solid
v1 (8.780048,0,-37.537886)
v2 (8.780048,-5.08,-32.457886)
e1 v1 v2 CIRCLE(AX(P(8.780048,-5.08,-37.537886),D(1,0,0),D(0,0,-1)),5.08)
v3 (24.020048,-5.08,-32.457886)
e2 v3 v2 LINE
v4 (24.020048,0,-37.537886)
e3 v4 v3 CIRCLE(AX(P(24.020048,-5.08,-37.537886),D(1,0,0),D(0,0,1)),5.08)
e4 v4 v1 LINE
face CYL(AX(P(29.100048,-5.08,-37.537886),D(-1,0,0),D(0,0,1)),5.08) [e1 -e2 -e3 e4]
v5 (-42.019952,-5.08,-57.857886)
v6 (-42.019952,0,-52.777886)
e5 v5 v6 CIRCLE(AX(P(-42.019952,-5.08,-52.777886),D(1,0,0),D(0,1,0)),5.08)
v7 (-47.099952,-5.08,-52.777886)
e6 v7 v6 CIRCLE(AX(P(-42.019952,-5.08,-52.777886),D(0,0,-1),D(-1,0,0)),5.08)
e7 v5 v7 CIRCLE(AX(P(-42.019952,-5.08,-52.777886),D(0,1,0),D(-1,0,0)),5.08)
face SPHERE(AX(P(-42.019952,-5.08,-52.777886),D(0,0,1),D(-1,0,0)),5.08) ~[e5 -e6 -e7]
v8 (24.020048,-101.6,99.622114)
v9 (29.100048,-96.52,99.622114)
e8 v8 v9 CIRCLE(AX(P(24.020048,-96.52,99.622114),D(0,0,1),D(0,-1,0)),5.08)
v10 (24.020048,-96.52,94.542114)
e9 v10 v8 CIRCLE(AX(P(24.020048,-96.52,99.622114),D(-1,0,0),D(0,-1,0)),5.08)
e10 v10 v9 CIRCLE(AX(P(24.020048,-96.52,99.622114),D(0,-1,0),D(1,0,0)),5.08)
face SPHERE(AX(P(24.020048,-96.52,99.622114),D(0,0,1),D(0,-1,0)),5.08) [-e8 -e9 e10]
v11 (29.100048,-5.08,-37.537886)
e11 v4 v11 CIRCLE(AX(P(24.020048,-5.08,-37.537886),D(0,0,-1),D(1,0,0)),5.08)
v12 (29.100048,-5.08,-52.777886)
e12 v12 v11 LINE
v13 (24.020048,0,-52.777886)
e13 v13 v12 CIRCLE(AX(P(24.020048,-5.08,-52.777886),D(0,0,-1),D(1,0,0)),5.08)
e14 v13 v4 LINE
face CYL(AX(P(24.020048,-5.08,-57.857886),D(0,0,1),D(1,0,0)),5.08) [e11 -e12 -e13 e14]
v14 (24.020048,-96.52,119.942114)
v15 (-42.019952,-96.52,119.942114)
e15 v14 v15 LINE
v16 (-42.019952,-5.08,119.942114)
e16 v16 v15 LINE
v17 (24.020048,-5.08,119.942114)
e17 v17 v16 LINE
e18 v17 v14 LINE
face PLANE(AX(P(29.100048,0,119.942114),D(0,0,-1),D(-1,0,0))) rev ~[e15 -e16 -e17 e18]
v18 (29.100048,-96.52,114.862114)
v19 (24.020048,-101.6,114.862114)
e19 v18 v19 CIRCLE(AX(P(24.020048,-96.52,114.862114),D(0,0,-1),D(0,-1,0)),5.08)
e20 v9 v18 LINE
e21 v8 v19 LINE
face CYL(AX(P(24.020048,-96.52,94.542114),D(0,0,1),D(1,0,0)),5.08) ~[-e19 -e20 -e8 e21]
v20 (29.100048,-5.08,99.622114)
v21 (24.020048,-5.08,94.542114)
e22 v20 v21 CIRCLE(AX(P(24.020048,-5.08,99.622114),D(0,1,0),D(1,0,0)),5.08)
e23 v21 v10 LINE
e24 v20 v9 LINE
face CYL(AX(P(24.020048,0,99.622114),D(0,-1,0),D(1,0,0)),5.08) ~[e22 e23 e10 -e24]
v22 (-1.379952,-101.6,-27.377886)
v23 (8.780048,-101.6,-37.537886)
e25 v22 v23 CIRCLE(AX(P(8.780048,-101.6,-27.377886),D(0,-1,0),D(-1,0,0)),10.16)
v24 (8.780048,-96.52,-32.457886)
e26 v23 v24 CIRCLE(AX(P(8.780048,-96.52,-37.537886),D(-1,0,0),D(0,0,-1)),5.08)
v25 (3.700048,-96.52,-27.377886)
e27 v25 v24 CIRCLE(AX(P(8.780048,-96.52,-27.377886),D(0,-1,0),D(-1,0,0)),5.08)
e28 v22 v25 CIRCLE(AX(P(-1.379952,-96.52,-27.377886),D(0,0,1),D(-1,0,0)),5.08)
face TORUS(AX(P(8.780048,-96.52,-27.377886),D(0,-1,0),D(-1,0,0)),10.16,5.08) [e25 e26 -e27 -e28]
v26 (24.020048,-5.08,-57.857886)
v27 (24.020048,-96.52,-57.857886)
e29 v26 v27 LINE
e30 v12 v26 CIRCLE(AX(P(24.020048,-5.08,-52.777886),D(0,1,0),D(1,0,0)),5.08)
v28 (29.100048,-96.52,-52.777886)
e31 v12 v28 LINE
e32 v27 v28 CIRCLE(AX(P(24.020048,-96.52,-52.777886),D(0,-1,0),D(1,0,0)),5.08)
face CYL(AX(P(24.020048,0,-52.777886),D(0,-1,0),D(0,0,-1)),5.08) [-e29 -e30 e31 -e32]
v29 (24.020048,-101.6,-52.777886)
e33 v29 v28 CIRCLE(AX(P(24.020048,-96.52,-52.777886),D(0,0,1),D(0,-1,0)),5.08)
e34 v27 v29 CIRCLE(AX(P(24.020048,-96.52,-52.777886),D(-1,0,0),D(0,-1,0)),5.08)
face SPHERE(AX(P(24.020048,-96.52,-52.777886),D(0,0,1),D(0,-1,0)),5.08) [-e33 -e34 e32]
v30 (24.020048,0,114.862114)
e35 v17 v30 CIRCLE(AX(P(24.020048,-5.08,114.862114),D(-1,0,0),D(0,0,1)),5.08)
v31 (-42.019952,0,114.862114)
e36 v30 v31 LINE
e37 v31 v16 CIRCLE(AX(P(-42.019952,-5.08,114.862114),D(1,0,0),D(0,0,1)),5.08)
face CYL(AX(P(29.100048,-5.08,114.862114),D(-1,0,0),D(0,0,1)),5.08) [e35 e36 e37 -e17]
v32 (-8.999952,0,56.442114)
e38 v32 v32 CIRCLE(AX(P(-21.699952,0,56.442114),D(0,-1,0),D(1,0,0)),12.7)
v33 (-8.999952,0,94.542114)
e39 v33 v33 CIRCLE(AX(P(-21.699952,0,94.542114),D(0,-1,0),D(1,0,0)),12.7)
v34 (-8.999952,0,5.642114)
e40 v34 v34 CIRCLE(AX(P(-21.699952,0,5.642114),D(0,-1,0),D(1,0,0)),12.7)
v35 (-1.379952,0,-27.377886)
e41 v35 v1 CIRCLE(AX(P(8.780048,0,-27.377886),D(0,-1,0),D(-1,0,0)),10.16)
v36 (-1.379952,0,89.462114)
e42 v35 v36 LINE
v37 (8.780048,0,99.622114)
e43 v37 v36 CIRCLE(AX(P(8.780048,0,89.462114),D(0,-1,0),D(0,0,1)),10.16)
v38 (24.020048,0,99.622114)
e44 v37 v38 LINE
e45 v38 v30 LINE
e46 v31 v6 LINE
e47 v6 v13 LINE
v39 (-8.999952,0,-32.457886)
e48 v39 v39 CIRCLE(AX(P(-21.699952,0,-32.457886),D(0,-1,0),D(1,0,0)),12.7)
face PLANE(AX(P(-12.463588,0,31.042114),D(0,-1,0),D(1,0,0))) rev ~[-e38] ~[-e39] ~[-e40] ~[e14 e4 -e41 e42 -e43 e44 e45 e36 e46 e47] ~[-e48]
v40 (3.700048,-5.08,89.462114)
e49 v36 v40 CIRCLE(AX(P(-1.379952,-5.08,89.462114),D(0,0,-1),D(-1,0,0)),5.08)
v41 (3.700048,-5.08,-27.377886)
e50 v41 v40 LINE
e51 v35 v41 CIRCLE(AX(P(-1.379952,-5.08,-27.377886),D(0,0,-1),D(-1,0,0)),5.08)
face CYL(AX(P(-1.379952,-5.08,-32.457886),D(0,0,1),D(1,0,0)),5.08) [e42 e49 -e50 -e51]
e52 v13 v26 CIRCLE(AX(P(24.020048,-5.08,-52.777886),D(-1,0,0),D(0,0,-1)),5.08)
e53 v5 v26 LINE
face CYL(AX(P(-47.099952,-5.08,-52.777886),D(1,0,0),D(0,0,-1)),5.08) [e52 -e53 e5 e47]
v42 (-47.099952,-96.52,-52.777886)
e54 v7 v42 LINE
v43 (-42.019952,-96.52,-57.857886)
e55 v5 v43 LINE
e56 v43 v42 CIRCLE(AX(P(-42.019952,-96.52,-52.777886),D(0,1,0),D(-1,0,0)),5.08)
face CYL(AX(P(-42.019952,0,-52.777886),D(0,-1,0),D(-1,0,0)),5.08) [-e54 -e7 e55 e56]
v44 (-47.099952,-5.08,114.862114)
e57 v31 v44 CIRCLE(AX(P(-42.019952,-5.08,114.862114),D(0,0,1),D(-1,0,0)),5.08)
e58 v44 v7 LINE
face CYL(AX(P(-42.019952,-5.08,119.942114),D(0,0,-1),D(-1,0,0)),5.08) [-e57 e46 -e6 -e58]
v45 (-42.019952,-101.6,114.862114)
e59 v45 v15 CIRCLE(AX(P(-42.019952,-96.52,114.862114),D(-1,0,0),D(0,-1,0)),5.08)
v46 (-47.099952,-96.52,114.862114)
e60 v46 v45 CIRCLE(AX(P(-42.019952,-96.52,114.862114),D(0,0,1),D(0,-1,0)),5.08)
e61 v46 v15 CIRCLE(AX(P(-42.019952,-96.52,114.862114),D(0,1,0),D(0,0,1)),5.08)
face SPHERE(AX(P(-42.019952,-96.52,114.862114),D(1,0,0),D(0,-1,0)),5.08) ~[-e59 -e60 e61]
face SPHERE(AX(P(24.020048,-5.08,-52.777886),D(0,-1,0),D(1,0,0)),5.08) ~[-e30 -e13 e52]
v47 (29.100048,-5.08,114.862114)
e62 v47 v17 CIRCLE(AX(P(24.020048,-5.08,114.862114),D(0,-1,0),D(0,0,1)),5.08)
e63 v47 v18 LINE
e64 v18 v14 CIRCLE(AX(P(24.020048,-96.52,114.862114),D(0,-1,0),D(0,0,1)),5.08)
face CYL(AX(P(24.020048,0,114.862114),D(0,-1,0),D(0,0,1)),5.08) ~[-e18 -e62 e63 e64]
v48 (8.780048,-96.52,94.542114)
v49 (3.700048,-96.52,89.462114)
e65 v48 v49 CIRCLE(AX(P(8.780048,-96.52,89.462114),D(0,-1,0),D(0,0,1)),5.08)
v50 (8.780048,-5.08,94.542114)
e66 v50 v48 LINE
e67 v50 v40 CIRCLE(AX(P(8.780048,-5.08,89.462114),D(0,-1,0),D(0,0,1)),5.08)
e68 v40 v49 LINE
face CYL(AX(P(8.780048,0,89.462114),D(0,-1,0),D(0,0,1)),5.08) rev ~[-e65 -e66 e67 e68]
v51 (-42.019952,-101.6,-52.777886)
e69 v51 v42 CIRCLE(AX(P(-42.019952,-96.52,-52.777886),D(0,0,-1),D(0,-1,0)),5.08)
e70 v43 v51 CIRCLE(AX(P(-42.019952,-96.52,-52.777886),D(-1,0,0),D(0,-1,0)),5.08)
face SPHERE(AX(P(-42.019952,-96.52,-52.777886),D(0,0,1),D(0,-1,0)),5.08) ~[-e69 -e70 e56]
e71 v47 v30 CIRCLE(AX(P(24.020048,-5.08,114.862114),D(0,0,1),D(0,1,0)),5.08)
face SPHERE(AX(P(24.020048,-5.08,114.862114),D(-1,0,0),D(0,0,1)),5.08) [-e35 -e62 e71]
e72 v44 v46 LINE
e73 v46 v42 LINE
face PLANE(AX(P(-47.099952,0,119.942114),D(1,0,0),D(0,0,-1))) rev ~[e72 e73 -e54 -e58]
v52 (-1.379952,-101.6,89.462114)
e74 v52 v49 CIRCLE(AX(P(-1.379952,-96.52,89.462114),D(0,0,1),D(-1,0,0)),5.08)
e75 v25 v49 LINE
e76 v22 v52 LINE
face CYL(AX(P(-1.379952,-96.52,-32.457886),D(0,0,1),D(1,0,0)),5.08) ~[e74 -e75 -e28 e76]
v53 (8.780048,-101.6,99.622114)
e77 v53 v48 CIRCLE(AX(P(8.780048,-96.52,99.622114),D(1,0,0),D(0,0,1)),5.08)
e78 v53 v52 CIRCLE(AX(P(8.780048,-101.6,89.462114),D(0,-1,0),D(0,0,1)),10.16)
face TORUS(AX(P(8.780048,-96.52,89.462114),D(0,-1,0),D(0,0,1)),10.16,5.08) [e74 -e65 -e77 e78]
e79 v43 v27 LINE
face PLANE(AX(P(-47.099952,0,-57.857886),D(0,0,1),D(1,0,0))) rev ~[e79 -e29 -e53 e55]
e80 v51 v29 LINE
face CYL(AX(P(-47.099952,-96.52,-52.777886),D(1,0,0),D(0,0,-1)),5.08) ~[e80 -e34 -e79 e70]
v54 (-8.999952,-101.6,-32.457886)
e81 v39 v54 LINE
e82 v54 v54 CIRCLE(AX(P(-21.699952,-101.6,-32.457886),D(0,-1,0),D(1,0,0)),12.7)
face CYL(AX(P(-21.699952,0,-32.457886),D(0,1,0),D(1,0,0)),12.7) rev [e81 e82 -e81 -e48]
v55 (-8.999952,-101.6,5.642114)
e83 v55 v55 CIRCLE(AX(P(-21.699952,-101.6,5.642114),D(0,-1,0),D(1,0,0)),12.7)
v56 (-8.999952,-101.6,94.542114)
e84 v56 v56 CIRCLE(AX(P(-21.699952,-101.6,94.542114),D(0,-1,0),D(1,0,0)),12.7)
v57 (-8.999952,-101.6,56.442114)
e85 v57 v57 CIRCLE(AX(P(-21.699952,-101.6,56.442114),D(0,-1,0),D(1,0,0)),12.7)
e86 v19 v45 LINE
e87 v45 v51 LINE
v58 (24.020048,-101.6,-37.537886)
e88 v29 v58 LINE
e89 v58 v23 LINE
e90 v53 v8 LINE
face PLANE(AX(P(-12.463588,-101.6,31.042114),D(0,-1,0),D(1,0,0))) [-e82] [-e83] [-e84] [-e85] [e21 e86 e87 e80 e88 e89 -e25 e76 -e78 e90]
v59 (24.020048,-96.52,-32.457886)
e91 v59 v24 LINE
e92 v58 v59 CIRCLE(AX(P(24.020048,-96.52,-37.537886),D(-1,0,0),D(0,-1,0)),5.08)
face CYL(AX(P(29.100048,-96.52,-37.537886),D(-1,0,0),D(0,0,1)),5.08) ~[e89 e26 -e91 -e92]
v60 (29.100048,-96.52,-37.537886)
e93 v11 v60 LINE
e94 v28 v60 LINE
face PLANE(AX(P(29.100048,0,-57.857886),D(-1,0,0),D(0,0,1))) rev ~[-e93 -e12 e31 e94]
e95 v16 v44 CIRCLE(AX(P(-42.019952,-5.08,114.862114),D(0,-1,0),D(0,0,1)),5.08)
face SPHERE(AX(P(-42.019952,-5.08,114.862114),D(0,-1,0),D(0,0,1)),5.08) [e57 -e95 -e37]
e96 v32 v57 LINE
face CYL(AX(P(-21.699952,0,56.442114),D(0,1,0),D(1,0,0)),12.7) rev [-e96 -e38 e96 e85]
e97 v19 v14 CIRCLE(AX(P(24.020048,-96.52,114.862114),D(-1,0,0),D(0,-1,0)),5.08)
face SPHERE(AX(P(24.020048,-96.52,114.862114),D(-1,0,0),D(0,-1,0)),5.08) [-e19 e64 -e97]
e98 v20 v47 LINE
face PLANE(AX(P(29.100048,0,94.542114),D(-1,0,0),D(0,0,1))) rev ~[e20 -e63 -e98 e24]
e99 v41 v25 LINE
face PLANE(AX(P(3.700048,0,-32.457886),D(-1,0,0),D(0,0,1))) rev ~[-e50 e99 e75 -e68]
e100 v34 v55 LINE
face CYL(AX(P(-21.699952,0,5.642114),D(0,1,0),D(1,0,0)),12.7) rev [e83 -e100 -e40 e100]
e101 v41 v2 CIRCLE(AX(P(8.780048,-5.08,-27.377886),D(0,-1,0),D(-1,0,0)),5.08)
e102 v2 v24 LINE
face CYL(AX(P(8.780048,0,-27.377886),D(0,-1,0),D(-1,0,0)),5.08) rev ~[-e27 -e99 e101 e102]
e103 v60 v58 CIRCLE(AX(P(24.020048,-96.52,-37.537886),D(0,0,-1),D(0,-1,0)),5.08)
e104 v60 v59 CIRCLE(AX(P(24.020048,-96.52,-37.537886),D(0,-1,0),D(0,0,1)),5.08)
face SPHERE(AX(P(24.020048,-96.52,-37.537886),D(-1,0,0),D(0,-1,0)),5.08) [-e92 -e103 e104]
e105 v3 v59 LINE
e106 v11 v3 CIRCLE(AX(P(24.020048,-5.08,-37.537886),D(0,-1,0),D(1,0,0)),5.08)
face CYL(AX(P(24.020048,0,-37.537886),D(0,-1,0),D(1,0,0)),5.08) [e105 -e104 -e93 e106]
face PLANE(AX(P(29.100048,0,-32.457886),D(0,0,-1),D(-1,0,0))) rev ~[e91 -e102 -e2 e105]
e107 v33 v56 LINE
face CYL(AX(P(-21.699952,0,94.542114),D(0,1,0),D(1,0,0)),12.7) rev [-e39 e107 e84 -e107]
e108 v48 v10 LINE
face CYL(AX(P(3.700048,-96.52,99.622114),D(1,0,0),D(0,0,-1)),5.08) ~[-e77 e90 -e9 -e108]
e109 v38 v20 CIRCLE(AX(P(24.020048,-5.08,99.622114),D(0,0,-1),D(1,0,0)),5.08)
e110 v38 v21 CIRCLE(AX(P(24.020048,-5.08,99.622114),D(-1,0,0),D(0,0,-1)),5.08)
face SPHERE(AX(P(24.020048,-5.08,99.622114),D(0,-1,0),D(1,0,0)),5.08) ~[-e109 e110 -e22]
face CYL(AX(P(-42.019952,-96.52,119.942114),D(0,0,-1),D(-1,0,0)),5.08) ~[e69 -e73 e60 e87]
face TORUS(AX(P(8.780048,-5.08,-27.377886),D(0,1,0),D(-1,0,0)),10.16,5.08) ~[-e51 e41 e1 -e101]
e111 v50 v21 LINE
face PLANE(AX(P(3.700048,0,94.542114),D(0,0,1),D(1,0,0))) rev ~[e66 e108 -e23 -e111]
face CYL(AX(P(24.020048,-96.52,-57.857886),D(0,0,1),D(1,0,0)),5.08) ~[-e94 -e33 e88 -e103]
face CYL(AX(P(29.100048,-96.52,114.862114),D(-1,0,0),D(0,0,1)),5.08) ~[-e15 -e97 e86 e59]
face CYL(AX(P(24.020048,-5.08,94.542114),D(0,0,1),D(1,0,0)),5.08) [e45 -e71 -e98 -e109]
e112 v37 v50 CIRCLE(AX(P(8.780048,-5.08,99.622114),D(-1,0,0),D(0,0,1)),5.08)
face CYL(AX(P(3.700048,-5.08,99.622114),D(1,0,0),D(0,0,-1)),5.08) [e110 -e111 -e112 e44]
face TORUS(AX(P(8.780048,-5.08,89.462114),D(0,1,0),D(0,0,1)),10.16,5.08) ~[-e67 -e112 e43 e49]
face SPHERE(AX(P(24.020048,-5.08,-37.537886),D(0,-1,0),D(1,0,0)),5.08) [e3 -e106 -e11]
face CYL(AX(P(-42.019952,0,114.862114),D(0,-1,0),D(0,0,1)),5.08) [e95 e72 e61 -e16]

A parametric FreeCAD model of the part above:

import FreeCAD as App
import Part
import Sketcher
Q = App.Units.Quantity


def edges_at(feature, points):
    """Names of the edges that pass closest to the given points."""
    edges = feature.Shape.Edges
    near = lambda p: min(range(len(edges)), key=lambda i: edges[i].distToShape(Part.Vertex(*p))[0])
    return sorted({f"Edge{near(p) + 1}" for p in points})


def add_polygon(sketch, points):
    """Adds a closed chain of lines whose ends are joined by coincident constraints."""
    first, n = sketch.GeometryCount, len(points)
    for a, b in zip(points, points[1:] + points[:1]):
        sketch.addGeometry(Part.LineSegment(App.Vector(*a, 0), App.Vector(*b, 0)), False)
    for i in range(n):
        sketch.addConstraint(Sketcher.Constraint("Coincident", first + i, 2, first + (i + 1) % n, 1))

doc = App.newDocument("Part")
body = doc.addObject("PartDesign::Body", "Body")

sketch1 = body.newObject("Sketcher::SketchObject", "Sketch")
sketch1.AttachmentSupport = (doc.getObject("XZ_Plane"), [""])
sketch1.MapMode = "FlatFace"
add_polygon(sketch1, [(29.100048, 119.942114), (-47.099952, 119.942114), (-47.099952, -57.857886), (29.100048, -57.857886), (29.100048, -32.457886), (3.700048, -32.457886), (3.700048, 94.542114), (29.100048, 94.542114)])
sketch1.addGeometry(Part.Circle(App.Vector(-21.699952, -32.457886, 0), App.Vector(0, 0, 1), 12.7), False)
sketch1.addGeometry(Part.Circle(App.Vector(-21.699952, 5.642114, 0), App.Vector(0, 0, 1), 12.7), False)
sketch1.addGeometry(Part.Circle(App.Vector(-21.699952, 56.442114, 0), App.Vector(0, 0, 1), 12.7), False)
sketch1.addGeometry(Part.Circle(App.Vector(-21.699952, 94.542114, 0), App.Vector(0, 0, 1), 12.7), False)
sketch1.addConstraint([
    Sketcher.Constraint("Horizontal", 0),
    Sketcher.Constraint("Vertical", 1),
    Sketcher.Constraint("Horizontal", 2),
    Sketcher.Constraint("Vertical", 3),
    Sketcher.Constraint("Horizontal", 4),
    Sketcher.Constraint("Vertical", 5),
    Sketcher.Constraint("Horizontal", 6),
    Sketcher.Constraint("Vertical", 7),
    Sketcher.Constraint("Equal", 8, 9),
    Sketcher.Constraint("Equal", 9, 10),
    Sketcher.Constraint("Equal", 10, 11),
    Sketcher.Constraint("Horizontal", 8, 3, 3, 2),
    Sketcher.Constraint("Horizontal", 11, 3, 5, 2),
    Sketcher.Constraint("Vertical", 8, 3, 9, 3),
    Sketcher.Constraint("Vertical", 9, 3, 10, 3),
    Sketcher.Constraint("Vertical", 10, 3, 11, 3),
    Sketcher.Constraint("Vertical", 3, 2, 6, 2),
    Sketcher.Constraint("Equal", 6, 3),
    Sketcher.Constraint("Equal", 3, 7),
    Sketcher.Constraint("Diameter", 8, Q("1 in")),
    Sketcher.Constraint("DistanceX", 0, 2, 0, 1, Q("3 in")),
    Sketcher.Constraint("DistanceX", 4, 2, 4, 1, Q("1 in")),
    Sketcher.Constraint("DistanceY", 1, 2, 1, 1, Q("7 in")),
    Sketcher.Constraint("DistanceY", 9, 3, 10, 3, Q("2 in")),
    Sketcher.Constraint("DistanceX", 0, 2, 11, 3, Q("1 in")),
    Sketcher.Constraint("DistanceY", 8, 3, 9, 3, Q("1.5 in")),
    Sketcher.Constraint("DistanceX", 8, 3, -1, 1, Q("21.699952 mm")),
    Sketcher.Constraint("DistanceY", 8, 3, -1, 1, Q("32.457886 mm")),
])
pad1 = body.newObject("PartDesign::Pad", "Pad")
pad1.Profile = sketch1
pad1.Length = Q("4 in")
doc.recompute()

fillet = body.newObject("PartDesign::Fillet", "Fillet")
fillet.Base = (pad1, edges_at(pad1, [
    (-9, -101.6, 119.942),
    (-47.1, -101.6, 31.042),
    (29.1, -101.6, 107.242),
    (16.4, -101.6, 94.542),
    (3.7, -101.6, 31.042),
    (16.4, -101.6, -32.458),
    (29.1, -101.6, -45.158),
    (-9, -101.6, -57.858),
    (-47.1, -50.8, 119.942),
    (-9, 0, 119.942),
    (29.1, -50.8, 119.942),
    (-47.1, 0, 31.042),
    (-47.1, -50.8, -57.858),
    (29.1, -50.8, -32.458),
    (3.7, -50.8, -32.458),
    (29.1, -50.8, 94.542),
    (29.1, 0, 107.242),
    (29.1, -50.8, -57.858),
    (29.1, 0, -45.158),
    (3.7, -50.8, 94.542),
    (16.4, 0, 94.542),
    (3.7, 0, 31.042),
    (16.4, 0, -32.458),
    (-9, 0, -57.858),
]))
fillet.Radius = Q("0.2 in")

doc.recompute()
